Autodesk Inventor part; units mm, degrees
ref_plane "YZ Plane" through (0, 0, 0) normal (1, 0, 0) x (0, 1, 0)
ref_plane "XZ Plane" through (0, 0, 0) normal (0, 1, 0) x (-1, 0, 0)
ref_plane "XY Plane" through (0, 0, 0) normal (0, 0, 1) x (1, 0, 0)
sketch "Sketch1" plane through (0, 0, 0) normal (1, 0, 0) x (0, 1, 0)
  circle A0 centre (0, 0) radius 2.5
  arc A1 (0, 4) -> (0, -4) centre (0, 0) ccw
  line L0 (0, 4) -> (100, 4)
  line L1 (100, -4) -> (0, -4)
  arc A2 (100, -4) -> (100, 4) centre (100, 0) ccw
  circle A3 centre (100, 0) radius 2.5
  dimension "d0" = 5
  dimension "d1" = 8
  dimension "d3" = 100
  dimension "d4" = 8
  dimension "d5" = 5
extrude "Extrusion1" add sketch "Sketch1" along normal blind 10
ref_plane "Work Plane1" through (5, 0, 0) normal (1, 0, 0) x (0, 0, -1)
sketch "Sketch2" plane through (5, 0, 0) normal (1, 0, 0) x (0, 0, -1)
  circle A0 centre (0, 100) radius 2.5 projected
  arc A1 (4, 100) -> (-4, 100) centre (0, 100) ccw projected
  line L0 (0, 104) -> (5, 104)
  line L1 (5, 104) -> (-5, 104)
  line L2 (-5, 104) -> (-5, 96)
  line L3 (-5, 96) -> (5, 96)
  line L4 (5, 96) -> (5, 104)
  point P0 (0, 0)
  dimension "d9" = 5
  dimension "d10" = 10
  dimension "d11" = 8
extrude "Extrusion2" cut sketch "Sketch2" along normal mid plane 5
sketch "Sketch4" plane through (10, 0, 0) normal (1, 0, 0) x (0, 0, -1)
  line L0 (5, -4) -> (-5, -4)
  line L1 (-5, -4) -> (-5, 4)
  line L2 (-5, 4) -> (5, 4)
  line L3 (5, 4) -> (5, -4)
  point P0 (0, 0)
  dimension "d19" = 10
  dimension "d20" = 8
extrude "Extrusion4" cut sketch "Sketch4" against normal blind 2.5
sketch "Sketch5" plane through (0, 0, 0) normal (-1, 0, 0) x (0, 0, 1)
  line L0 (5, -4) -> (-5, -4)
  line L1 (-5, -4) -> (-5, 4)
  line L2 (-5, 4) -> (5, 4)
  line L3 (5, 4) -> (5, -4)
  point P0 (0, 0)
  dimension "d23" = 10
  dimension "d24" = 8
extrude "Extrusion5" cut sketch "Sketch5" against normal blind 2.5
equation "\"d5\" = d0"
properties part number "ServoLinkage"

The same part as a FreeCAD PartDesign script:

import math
import FreeCAD as App
import Part
import Sketcher
from FreeCAD import Vector


def add_polygon(sketch, points):
    """Adds a closed chain of lines whose ends are joined by coincident constraints."""
    first, n = sketch.GeometryCount, len(points)
    for a, b in zip(points, points[1:] + points[:1]):
        sketch.addGeometry(Part.LineSegment(App.Vector(*a, 0), App.Vector(*b, 0)), False)
    for i in range(n):
        sketch.addConstraint(Sketcher.Constraint("Coincident", first + i, 2, first + (i + 1) % n, 1))

doc = App.newDocument("Part")
body = doc.addObject("PartDesign::Body", "Body")

sketch1 = body.newObject("Sketcher::SketchObject", "Sketch")
sketch1.AttachmentSupport = (doc.getObject("YZ_Plane"), [""])
sketch1.MapMode = "FlatFace"
sketch1.addGeometry([
    Part.LineSegment(Vector(100, 4, 0), Vector(0, 4, 0)),
    Part.ArcOfCircle(Part.Circle(Vector(0, 0, 0), Vector(0, 0, 1), 4), math.radians(90), math.radians(270)),
    Part.LineSegment(Vector(0, -4, 0), Vector(100, -4, 0)),
    Part.ArcOfCircle(Part.Circle(Vector(100, 0, 0), Vector(0, 0, 1), 4), math.radians(-90), math.radians(90)),
    Part.Circle(Vector(0, 0, 0), Vector(0, 0, 1), 2.5),
    Part.Circle(Vector(100, 0, 0), Vector(0, 0, 1), 2.5),
], False)
sketch1.addConstraint([
    Sketcher.Constraint("Tangent", 0, 2, 1, 1),
    Sketcher.Constraint("Tangent", 1, 2, 2, 1),
    Sketcher.Constraint("Tangent", 2, 2, 3, 1),
    Sketcher.Constraint("Tangent", 3, 2, 0, 1),
    Sketcher.Constraint("Horizontal", 0),
    Sketcher.Constraint("Horizontal", 2),
    Sketcher.Constraint("Coincident", 1, 3, -1, 1),
    Sketcher.Constraint("Coincident", 4, 3, -1, 1),
    Sketcher.Constraint("Coincident", 5, 3, 3, 3),
    Sketcher.Constraint("Equal", 4, 5),
    Sketcher.Constraint("Diameter", 4, 5.0),
    Sketcher.Constraint("Radius", 1, 4.0),
    Sketcher.Constraint("DistanceX", 0, 2, 0, 1, 100.0),
])
pad1 = body.newObject("PartDesign::Pad", "Pad")
pad1.Profile = sketch1
pad1.Length = 10

sketch2 = body.newObject("Sketcher::SketchObject", "Sketch001")
sketch2.AttachmentSupport = (doc.getObject("YZ_Plane"), [""])
sketch2.MapMode = "FlatFace"
sketch2.AttachmentOffset = App.Placement(Vector(0, 0, 5), App.Rotation())
add_polygon(sketch2, [(104, -5), (104, 5), (96, 5), (96, -5)])
sketch2.addGeometry(Part.Circle(Vector(100, 0, 0), Vector(0, 0, 1), 2.5), False)
sketch2.addConstraint([
    Sketcher.Constraint("Vertical", 0),
    Sketcher.Constraint("Horizontal", 1),
    Sketcher.Constraint("Vertical", 2),
    Sketcher.Constraint("Horizontal", 3),
    Sketcher.Constraint("PointOnObject", 4, 3, -1),
    Sketcher.Constraint("Diameter", 4, 5.0),
    Sketcher.Constraint("DistanceX", 1, 2, 1, 1, 8.0),
    Sketcher.Constraint("DistanceY", 0, 1, 0, 2, 10.0),
    Sketcher.Constraint("DistanceY", -1, 1, 0, 2, 5.0),
    Sketcher.Constraint("DistanceX", -1, 1, 4, 3, 100.0),
    Sketcher.Constraint("DistanceX", -1, 1, 0, 2, 104.0),
])
pocket1 = body.newObject("PartDesign::Pocket", "Pocket")
pocket1.Profile = sketch2
pocket1.Length = 5
pocket1.Midplane = True

sketch3 = body.newObject("Sketcher::SketchObject", "Sketch002")
sketch3.AttachmentSupport = (doc.getObject("YZ_Plane"), [""])
sketch3.MapMode = "FlatFace"
sketch3.AttachmentOffset = App.Placement(Vector(0, 0, 10), App.Rotation())
add_polygon(sketch3, [(-4, 5), (-4, -5), (4, -5), (4, 5)])
sketch3.addConstraint([
    Sketcher.Constraint("Vertical", 0),
    Sketcher.Constraint("Horizontal", 1),
    Sketcher.Constraint("Vertical", 2),
    Sketcher.Constraint("Horizontal", 3),
    Sketcher.Constraint("Symmetric", 0, 2, 2, 2, -1, 1),
    Sketcher.Constraint("DistanceX", 1, 1, 1, 2, 8.0),
    Sketcher.Constraint("DistanceY", 0, 2, 0, 1, 10.0),
])
pocket2 = body.newObject("PartDesign::Pocket", "Pocket001")
pocket2.Profile = sketch3
pocket2.Length = 2.5

sketch4 = body.newObject("Sketcher::SketchObject", "Sketch003")
sketch4.AttachmentSupport = (doc.getObject("YZ_Plane"), [""])
sketch4.MapMode = "FlatFace"
add_polygon(sketch4, [(-4, -5), (-4, 5), (4, 5), (4, -5)])
sketch4.addConstraint([
    Sketcher.Constraint("Vertical", 0),
    Sketcher.Constraint("Horizontal", 1),
    Sketcher.Constraint("Vertical", 2),
    Sketcher.Constraint("Horizontal", 3),
    Sketcher.Constraint("Symmetric", 0, 2, 2, 2, -1, 1),
    Sketcher.Constraint("DistanceX", 1, 1, 1, 2, 8.0),
    Sketcher.Constraint("DistanceY", 0, 1, 0, 2, 10.0),
])
pocket3 = body.newObject("PartDesign::Pocket", "Pocket002")
pocket3.Profile = sketch4
pocket3.Length = 2.5
pocket3.Reversed = True

doc.recompute()
